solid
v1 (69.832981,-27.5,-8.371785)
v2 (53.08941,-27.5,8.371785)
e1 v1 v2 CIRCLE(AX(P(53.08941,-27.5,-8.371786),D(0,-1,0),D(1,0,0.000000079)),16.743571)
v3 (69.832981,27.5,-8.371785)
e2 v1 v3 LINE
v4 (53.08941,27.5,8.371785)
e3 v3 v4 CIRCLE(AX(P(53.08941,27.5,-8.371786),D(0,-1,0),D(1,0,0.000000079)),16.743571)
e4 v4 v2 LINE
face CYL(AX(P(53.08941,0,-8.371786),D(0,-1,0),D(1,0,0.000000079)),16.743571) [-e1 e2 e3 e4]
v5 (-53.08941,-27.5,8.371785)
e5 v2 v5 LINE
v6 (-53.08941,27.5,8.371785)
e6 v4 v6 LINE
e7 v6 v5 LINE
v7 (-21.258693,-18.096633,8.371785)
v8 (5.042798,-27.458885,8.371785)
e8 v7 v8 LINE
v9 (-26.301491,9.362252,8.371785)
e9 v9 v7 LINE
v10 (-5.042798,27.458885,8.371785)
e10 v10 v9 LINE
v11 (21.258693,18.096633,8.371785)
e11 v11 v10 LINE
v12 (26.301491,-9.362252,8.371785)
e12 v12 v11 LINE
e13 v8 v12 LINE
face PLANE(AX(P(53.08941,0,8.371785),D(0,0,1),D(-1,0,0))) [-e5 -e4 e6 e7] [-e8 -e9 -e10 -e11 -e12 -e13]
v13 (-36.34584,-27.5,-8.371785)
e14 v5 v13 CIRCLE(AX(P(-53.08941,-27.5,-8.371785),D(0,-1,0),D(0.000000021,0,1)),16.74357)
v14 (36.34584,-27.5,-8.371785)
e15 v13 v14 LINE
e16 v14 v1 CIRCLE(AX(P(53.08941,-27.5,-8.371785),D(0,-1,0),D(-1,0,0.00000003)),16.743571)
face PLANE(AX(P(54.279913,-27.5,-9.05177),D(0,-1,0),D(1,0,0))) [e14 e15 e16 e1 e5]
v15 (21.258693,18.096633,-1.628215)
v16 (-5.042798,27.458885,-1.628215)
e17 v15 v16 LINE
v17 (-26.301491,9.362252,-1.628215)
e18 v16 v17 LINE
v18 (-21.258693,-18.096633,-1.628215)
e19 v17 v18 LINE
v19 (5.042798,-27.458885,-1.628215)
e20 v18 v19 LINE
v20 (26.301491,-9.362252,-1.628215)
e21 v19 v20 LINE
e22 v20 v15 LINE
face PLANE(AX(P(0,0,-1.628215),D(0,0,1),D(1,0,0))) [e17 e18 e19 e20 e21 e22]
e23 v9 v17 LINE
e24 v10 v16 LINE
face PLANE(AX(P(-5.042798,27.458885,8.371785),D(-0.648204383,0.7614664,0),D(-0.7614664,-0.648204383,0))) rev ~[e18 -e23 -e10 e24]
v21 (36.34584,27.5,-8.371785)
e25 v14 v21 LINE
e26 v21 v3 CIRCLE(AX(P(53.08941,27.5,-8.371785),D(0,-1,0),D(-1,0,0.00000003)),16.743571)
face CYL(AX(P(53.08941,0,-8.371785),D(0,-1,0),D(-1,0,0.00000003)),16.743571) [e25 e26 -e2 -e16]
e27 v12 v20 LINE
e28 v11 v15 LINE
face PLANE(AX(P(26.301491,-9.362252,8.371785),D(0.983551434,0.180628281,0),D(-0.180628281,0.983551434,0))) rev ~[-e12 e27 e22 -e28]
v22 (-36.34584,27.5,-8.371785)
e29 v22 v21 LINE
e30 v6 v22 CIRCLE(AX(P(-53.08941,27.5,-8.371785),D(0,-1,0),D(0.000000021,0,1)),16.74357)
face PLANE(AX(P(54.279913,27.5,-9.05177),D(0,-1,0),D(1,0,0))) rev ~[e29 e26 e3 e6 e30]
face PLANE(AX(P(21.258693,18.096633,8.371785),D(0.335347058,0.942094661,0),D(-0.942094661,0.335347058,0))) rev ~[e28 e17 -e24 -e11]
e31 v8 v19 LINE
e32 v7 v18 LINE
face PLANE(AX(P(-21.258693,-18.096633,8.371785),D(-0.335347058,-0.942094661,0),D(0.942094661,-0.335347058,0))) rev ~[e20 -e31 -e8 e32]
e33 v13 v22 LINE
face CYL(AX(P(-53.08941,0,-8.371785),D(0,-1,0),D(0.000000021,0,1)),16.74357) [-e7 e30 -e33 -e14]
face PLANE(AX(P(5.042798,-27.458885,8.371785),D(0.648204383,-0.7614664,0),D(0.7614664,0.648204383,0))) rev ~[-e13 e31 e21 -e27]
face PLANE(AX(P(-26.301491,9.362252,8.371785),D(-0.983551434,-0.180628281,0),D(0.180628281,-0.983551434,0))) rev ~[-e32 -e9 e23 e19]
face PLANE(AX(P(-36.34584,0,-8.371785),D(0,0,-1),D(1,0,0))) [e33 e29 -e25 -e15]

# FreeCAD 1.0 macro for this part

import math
import FreeCAD as App
import Part
import Sketcher


def add_polygon(sketch, points):
    """Adds a closed chain of lines whose ends are joined by coincident constraints."""
    first, n = sketch.GeometryCount, len(points)
    for a, b in zip(points, points[1:] + points[:1]):
        sketch.addGeometry(Part.LineSegment(App.Vector(*a, 0), App.Vector(*b, 0)), False)
    for i in range(n):
        sketch.addConstraint(Sketcher.Constraint("Coincident", first + i, 2, first + (i + 1) % n, 1))

doc = App.newDocument("Part")
body = doc.addObject("PartDesign::Body", "Body")

# Sketch on XZ plane
sketch1 = body.newObject("Sketcher::SketchObject", "Sketch")
sketch1.AttachmentSupport = (doc.getObject("XZ_Plane"), [""])
sketch1.MapMode = "FlatFace"
sketch1.addGeometry([
    Part.ArcOfCircle(Part.Circle(App.Vector(53, -8, 0), App.Vector(0, 0, 1), 17), math.radians(0), math.radians(90)),  # 0
    Part.LineSegment(App.Vector(53, 8, 0), App.Vector(-53, 8, 0)),  # 1
    Part.ArcOfCircle(Part.Circle(App.Vector(-53, -8, 0), App.Vector(0, 0, 1), 17), math.radians(90), math.radians(360)),  # 2
    Part.LineSegment(App.Vector(-36, -8, 0), App.Vector(36, -8, 0)),  # 3
    Part.ArcOfCircle(Part.Circle(App.Vector(53, -8, 0), App.Vector(0, 0, 1), 17), math.radians(180), math.radians(360)),  # 4
], False)
sketch1.addConstraint([
    Sketcher.Constraint("Tangent", 0, 2, 1, 1),
    Sketcher.Constraint("Tangent", 1, 2, 2, 1),
    Sketcher.Constraint("Coincident", 2, 2, 3, 1),
    Sketcher.Constraint("Coincident", 3, 2, 4, 1),
    Sketcher.Constraint("Tangent", 4, 2, 0, 1),
    Sketcher.Constraint("Horizontal", 1),
    Sketcher.Constraint("Horizontal", 3),
    Sketcher.Constraint("Equal", 0, 2),
    Sketcher.Constraint("Equal", 2, 4),
    Sketcher.Constraint("Horizontal", 4, 3, 2, 2),
    Sketcher.Constraint("Horizontal", 3, 2, 4, 2),
    Sketcher.Constraint("Radius", 0, 16.743571),
    Sketcher.Constraint("DistanceX", 1, 2, 1, 1, 106.17882),
    Sketcher.Constraint("DistanceX", -1, 1, 0, 3, 53.08941),
    Sketcher.Constraint("DistanceY", 0, 3, -1, 1, 8.371786),
])
pad1 = body.newObject("PartDesign::Pad", "Pad")
pad1.Profile = sketch1
pad1.Length = 55
pad1.Midplane = True

# Sketch on XY plane
sketch2 = body.newObject("Sketcher::SketchObject", "Sketch001")
sketch2.AttachmentSupport = (doc.getObject("XY_Plane"), [""])
sketch2.MapMode = "FlatFace"
sketch2.AttachmentOffset = App.Placement(App.Vector(0, 0, 8.371785), App.Rotation())
add_polygon(sketch2, [(26, -9), (21, 18), (-5, 27), (-26, 9), (-21, -18), (5, -27)])  # lines 0-5
sketch2.addConstraint([
    Sketcher.Constraint("Symmetric", 0, 2, 3, 2, -1, 1),
    Sketcher.Constraint("Symmetric", 1, 2, 4, 2, -1, 1),
    Sketcher.Constraint("Symmetric", 2, 2, 5, 2, -1, 1),
    Sketcher.Constraint("Equal", 0, 1),
    Sketcher.Constraint("Equal", 1, 2),
    Sketcher.Constraint("DistanceX", 1, 2, -1, 1, 5.042798),
    Sketcher.Constraint("DistanceX", 2, 2, -1, 1, 26.301491),
    Sketcher.Constraint("DistanceX", 1, 2, 0, 2, 26.301491),
    Sketcher.Constraint("DistanceY", 0, 2, 1, 2, 9.362252),
])
pocket1 = body.newObject("PartDesign::Pocket", "Pocket")
pocket1.Profile = sketch2
pocket1.Length = 10

doc.recompute()
